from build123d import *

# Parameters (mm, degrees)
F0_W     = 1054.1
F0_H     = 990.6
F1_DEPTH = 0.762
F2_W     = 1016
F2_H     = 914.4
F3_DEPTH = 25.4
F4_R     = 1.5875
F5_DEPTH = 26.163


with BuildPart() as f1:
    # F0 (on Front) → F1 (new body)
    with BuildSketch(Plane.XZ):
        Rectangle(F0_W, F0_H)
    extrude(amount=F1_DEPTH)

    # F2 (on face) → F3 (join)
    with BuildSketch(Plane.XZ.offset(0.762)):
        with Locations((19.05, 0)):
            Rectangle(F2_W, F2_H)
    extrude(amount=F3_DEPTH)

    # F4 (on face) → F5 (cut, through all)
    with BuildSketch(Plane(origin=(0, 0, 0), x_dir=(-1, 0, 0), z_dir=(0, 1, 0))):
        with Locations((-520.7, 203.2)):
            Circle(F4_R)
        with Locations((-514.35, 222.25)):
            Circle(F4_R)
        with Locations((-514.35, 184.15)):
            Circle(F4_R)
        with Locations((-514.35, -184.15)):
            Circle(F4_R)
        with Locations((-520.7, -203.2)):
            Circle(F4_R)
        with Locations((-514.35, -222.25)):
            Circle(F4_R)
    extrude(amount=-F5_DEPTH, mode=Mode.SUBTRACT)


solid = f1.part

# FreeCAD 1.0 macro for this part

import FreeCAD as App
import Part
import Sketcher
Q = App.Units.Quantity


def add_polygon(sketch, points):
    """Adds a closed chain of lines whose ends are joined by coincident constraints."""
    first, n = sketch.GeometryCount, len(points)
    for a, b in zip(points, points[1:] + points[:1]):
        sketch.addGeometry(Part.LineSegment(App.Vector(*a, 0), App.Vector(*b, 0)), False)
    for i in range(n):
        sketch.addConstraint(Sketcher.Constraint("Coincident", first + i, 2, first + (i + 1) % n, 1))

doc = App.newDocument("Part")
body = doc.addObject("PartDesign::Body", "Body")

# Sketch on XZ plane
sketch1 = doc.addObject("Sketcher::SketchObject", "Sketch")
body.addObject(sketch1)
sketch1.AttachmentSupport = (doc.XZ_Plane, [""])
sketch1.MapMode = "FlatFace"
add_polygon(sketch1, [(-527, 495), (-527, -495), (527, -495), (527, 495)])  # lines 0-3
sketch1.addConstraint([
    Sketcher.Constraint("Vertical", 0),
    Sketcher.Constraint("Horizontal", 1),
    Sketcher.Constraint("Vertical", 2),
    Sketcher.Constraint("Horizontal", 3),
    Sketcher.Constraint("Symmetric", 0, 2, 2, 2, -1, 1),
    Sketcher.Constraint("DistanceY", 0, 2, 0, 1, Q("39 in")),
    Sketcher.Constraint("DistanceX", 1, 1, 1, 2, Q("41.5 in")),
])
pad1 = doc.addObject("PartDesign::Pad", "Pad")
body.addObject(pad1)
pad1.Profile = sketch1
pad1.Length = Q("0.03 in")

# Sketch on XZ plane
sketch2 = doc.addObject("Sketcher::SketchObject", "Sketch001")
body.addObject(sketch2)
sketch2.AttachmentSupport = (doc.XZ_Plane, [""])
sketch2.MapMode = "FlatFace"
sketch2.AttachmentOffset = App.Placement(App.Vector(0, 0, 0.03 * 25.4), App.Rotation())
add_polygon(sketch2, [(-489, 457), (-489, -457), (527, -457), (527, 457)])  # lines 0-3
sketch2.addConstraint([
    Sketcher.Constraint("Vertical", 0),
    Sketcher.Constraint("Horizontal", 1),
    Sketcher.Constraint("Vertical", 2),
    Sketcher.Constraint("Horizontal", 3),
    Sketcher.Constraint("DistanceX", 1, 1, 1, 2, Q("40 in")),
    Sketcher.Constraint("DistanceY", 0, 2, 0, 1, Q("36 in")),
    Sketcher.Constraint("DistanceY", 0, 2, -1, 1, Q("18 in")),
    Sketcher.Constraint("DistanceX", 0, 2, -1, 1, Q("19.25 in")),
])
pad2 = doc.addObject("PartDesign::Pad", "Pad001")
body.addObject(pad2)
pad2.Profile = sketch2
pad2.Length = Q("1 in")

# Sketch on XZ plane
sketch3 = doc.addObject("Sketcher::SketchObject", "Sketch002")
body.addObject(sketch3)
sketch3.AttachmentSupport = (doc.XZ_Plane, [""])
sketch3.MapMode = "FlatFace"
sketch3.addGeometry([
    Part.Circle(App.Vector(520.7, 203.2, 0), App.Vector(0, 0, 1), 1.6),  # 0
    Part.Circle(App.Vector(514.4, 222.2, 0), App.Vector(0, 0, 1), 1.6),  # 1
    Part.Circle(App.Vector(514.4, 184.2, 0), App.Vector(0, 0, 1), 1.6),  # 2
    Part.Circle(App.Vector(514.4, -184.2, 0), App.Vector(0, 0, 1), 1.6),  # 3
    Part.Circle(App.Vector(520.7, -203.2, 0), App.Vector(0, 0, 1), 1.6),  # 4
    Part.Circle(App.Vector(514.4, -222.2, 0), App.Vector(0, 0, 1), 1.6),  # 5
], False)
sketch3.addConstraint([
    Sketcher.Constraint("Equal", 0, 1),
    Sketcher.Constraint("Equal", 1, 2),
    Sketcher.Constraint("Equal", 2, 3),
    Sketcher.Constraint("Equal", 3, 4),
    Sketcher.Constraint("Equal", 4, 5),
    Sketcher.Constraint("Symmetric", 2, 3, 3, 3, -1),
    Sketcher.Constraint("Symmetric", 0, 3, 4, 3, -1),
    Sketcher.Constraint("Symmetric", 1, 3, 5, 3, -1),
    Sketcher.Constraint("Vertical", 1, 3, 2, 3),
    Sketcher.Constraint("Diameter", 0, Q("0.125 in")),
    Sketcher.Constraint("DistanceY", -1, 1, 0, 3, Q("8 in")),
    Sketcher.Constraint("DistanceY", 3, 3, 1, 3, Q("16 in")),
    Sketcher.Constraint("DistanceX", -1, 1, 0, 3, Q("20.5 in")),
    Sketcher.Constraint("DistanceY", 2, 3, 1, 3, Q("1.5 in")),
    Sketcher.Constraint("DistanceX", -1, 1, 1, 3, Q("20.25 in")),
])
pocket1 = doc.addObject("PartDesign::Pocket", "Pocket")
body.addObject(pocket1)
pocket1.Profile = sketch3
pocket1.Type = "ThroughAll"
pocket1.Reversed = True

doc.recompute()
